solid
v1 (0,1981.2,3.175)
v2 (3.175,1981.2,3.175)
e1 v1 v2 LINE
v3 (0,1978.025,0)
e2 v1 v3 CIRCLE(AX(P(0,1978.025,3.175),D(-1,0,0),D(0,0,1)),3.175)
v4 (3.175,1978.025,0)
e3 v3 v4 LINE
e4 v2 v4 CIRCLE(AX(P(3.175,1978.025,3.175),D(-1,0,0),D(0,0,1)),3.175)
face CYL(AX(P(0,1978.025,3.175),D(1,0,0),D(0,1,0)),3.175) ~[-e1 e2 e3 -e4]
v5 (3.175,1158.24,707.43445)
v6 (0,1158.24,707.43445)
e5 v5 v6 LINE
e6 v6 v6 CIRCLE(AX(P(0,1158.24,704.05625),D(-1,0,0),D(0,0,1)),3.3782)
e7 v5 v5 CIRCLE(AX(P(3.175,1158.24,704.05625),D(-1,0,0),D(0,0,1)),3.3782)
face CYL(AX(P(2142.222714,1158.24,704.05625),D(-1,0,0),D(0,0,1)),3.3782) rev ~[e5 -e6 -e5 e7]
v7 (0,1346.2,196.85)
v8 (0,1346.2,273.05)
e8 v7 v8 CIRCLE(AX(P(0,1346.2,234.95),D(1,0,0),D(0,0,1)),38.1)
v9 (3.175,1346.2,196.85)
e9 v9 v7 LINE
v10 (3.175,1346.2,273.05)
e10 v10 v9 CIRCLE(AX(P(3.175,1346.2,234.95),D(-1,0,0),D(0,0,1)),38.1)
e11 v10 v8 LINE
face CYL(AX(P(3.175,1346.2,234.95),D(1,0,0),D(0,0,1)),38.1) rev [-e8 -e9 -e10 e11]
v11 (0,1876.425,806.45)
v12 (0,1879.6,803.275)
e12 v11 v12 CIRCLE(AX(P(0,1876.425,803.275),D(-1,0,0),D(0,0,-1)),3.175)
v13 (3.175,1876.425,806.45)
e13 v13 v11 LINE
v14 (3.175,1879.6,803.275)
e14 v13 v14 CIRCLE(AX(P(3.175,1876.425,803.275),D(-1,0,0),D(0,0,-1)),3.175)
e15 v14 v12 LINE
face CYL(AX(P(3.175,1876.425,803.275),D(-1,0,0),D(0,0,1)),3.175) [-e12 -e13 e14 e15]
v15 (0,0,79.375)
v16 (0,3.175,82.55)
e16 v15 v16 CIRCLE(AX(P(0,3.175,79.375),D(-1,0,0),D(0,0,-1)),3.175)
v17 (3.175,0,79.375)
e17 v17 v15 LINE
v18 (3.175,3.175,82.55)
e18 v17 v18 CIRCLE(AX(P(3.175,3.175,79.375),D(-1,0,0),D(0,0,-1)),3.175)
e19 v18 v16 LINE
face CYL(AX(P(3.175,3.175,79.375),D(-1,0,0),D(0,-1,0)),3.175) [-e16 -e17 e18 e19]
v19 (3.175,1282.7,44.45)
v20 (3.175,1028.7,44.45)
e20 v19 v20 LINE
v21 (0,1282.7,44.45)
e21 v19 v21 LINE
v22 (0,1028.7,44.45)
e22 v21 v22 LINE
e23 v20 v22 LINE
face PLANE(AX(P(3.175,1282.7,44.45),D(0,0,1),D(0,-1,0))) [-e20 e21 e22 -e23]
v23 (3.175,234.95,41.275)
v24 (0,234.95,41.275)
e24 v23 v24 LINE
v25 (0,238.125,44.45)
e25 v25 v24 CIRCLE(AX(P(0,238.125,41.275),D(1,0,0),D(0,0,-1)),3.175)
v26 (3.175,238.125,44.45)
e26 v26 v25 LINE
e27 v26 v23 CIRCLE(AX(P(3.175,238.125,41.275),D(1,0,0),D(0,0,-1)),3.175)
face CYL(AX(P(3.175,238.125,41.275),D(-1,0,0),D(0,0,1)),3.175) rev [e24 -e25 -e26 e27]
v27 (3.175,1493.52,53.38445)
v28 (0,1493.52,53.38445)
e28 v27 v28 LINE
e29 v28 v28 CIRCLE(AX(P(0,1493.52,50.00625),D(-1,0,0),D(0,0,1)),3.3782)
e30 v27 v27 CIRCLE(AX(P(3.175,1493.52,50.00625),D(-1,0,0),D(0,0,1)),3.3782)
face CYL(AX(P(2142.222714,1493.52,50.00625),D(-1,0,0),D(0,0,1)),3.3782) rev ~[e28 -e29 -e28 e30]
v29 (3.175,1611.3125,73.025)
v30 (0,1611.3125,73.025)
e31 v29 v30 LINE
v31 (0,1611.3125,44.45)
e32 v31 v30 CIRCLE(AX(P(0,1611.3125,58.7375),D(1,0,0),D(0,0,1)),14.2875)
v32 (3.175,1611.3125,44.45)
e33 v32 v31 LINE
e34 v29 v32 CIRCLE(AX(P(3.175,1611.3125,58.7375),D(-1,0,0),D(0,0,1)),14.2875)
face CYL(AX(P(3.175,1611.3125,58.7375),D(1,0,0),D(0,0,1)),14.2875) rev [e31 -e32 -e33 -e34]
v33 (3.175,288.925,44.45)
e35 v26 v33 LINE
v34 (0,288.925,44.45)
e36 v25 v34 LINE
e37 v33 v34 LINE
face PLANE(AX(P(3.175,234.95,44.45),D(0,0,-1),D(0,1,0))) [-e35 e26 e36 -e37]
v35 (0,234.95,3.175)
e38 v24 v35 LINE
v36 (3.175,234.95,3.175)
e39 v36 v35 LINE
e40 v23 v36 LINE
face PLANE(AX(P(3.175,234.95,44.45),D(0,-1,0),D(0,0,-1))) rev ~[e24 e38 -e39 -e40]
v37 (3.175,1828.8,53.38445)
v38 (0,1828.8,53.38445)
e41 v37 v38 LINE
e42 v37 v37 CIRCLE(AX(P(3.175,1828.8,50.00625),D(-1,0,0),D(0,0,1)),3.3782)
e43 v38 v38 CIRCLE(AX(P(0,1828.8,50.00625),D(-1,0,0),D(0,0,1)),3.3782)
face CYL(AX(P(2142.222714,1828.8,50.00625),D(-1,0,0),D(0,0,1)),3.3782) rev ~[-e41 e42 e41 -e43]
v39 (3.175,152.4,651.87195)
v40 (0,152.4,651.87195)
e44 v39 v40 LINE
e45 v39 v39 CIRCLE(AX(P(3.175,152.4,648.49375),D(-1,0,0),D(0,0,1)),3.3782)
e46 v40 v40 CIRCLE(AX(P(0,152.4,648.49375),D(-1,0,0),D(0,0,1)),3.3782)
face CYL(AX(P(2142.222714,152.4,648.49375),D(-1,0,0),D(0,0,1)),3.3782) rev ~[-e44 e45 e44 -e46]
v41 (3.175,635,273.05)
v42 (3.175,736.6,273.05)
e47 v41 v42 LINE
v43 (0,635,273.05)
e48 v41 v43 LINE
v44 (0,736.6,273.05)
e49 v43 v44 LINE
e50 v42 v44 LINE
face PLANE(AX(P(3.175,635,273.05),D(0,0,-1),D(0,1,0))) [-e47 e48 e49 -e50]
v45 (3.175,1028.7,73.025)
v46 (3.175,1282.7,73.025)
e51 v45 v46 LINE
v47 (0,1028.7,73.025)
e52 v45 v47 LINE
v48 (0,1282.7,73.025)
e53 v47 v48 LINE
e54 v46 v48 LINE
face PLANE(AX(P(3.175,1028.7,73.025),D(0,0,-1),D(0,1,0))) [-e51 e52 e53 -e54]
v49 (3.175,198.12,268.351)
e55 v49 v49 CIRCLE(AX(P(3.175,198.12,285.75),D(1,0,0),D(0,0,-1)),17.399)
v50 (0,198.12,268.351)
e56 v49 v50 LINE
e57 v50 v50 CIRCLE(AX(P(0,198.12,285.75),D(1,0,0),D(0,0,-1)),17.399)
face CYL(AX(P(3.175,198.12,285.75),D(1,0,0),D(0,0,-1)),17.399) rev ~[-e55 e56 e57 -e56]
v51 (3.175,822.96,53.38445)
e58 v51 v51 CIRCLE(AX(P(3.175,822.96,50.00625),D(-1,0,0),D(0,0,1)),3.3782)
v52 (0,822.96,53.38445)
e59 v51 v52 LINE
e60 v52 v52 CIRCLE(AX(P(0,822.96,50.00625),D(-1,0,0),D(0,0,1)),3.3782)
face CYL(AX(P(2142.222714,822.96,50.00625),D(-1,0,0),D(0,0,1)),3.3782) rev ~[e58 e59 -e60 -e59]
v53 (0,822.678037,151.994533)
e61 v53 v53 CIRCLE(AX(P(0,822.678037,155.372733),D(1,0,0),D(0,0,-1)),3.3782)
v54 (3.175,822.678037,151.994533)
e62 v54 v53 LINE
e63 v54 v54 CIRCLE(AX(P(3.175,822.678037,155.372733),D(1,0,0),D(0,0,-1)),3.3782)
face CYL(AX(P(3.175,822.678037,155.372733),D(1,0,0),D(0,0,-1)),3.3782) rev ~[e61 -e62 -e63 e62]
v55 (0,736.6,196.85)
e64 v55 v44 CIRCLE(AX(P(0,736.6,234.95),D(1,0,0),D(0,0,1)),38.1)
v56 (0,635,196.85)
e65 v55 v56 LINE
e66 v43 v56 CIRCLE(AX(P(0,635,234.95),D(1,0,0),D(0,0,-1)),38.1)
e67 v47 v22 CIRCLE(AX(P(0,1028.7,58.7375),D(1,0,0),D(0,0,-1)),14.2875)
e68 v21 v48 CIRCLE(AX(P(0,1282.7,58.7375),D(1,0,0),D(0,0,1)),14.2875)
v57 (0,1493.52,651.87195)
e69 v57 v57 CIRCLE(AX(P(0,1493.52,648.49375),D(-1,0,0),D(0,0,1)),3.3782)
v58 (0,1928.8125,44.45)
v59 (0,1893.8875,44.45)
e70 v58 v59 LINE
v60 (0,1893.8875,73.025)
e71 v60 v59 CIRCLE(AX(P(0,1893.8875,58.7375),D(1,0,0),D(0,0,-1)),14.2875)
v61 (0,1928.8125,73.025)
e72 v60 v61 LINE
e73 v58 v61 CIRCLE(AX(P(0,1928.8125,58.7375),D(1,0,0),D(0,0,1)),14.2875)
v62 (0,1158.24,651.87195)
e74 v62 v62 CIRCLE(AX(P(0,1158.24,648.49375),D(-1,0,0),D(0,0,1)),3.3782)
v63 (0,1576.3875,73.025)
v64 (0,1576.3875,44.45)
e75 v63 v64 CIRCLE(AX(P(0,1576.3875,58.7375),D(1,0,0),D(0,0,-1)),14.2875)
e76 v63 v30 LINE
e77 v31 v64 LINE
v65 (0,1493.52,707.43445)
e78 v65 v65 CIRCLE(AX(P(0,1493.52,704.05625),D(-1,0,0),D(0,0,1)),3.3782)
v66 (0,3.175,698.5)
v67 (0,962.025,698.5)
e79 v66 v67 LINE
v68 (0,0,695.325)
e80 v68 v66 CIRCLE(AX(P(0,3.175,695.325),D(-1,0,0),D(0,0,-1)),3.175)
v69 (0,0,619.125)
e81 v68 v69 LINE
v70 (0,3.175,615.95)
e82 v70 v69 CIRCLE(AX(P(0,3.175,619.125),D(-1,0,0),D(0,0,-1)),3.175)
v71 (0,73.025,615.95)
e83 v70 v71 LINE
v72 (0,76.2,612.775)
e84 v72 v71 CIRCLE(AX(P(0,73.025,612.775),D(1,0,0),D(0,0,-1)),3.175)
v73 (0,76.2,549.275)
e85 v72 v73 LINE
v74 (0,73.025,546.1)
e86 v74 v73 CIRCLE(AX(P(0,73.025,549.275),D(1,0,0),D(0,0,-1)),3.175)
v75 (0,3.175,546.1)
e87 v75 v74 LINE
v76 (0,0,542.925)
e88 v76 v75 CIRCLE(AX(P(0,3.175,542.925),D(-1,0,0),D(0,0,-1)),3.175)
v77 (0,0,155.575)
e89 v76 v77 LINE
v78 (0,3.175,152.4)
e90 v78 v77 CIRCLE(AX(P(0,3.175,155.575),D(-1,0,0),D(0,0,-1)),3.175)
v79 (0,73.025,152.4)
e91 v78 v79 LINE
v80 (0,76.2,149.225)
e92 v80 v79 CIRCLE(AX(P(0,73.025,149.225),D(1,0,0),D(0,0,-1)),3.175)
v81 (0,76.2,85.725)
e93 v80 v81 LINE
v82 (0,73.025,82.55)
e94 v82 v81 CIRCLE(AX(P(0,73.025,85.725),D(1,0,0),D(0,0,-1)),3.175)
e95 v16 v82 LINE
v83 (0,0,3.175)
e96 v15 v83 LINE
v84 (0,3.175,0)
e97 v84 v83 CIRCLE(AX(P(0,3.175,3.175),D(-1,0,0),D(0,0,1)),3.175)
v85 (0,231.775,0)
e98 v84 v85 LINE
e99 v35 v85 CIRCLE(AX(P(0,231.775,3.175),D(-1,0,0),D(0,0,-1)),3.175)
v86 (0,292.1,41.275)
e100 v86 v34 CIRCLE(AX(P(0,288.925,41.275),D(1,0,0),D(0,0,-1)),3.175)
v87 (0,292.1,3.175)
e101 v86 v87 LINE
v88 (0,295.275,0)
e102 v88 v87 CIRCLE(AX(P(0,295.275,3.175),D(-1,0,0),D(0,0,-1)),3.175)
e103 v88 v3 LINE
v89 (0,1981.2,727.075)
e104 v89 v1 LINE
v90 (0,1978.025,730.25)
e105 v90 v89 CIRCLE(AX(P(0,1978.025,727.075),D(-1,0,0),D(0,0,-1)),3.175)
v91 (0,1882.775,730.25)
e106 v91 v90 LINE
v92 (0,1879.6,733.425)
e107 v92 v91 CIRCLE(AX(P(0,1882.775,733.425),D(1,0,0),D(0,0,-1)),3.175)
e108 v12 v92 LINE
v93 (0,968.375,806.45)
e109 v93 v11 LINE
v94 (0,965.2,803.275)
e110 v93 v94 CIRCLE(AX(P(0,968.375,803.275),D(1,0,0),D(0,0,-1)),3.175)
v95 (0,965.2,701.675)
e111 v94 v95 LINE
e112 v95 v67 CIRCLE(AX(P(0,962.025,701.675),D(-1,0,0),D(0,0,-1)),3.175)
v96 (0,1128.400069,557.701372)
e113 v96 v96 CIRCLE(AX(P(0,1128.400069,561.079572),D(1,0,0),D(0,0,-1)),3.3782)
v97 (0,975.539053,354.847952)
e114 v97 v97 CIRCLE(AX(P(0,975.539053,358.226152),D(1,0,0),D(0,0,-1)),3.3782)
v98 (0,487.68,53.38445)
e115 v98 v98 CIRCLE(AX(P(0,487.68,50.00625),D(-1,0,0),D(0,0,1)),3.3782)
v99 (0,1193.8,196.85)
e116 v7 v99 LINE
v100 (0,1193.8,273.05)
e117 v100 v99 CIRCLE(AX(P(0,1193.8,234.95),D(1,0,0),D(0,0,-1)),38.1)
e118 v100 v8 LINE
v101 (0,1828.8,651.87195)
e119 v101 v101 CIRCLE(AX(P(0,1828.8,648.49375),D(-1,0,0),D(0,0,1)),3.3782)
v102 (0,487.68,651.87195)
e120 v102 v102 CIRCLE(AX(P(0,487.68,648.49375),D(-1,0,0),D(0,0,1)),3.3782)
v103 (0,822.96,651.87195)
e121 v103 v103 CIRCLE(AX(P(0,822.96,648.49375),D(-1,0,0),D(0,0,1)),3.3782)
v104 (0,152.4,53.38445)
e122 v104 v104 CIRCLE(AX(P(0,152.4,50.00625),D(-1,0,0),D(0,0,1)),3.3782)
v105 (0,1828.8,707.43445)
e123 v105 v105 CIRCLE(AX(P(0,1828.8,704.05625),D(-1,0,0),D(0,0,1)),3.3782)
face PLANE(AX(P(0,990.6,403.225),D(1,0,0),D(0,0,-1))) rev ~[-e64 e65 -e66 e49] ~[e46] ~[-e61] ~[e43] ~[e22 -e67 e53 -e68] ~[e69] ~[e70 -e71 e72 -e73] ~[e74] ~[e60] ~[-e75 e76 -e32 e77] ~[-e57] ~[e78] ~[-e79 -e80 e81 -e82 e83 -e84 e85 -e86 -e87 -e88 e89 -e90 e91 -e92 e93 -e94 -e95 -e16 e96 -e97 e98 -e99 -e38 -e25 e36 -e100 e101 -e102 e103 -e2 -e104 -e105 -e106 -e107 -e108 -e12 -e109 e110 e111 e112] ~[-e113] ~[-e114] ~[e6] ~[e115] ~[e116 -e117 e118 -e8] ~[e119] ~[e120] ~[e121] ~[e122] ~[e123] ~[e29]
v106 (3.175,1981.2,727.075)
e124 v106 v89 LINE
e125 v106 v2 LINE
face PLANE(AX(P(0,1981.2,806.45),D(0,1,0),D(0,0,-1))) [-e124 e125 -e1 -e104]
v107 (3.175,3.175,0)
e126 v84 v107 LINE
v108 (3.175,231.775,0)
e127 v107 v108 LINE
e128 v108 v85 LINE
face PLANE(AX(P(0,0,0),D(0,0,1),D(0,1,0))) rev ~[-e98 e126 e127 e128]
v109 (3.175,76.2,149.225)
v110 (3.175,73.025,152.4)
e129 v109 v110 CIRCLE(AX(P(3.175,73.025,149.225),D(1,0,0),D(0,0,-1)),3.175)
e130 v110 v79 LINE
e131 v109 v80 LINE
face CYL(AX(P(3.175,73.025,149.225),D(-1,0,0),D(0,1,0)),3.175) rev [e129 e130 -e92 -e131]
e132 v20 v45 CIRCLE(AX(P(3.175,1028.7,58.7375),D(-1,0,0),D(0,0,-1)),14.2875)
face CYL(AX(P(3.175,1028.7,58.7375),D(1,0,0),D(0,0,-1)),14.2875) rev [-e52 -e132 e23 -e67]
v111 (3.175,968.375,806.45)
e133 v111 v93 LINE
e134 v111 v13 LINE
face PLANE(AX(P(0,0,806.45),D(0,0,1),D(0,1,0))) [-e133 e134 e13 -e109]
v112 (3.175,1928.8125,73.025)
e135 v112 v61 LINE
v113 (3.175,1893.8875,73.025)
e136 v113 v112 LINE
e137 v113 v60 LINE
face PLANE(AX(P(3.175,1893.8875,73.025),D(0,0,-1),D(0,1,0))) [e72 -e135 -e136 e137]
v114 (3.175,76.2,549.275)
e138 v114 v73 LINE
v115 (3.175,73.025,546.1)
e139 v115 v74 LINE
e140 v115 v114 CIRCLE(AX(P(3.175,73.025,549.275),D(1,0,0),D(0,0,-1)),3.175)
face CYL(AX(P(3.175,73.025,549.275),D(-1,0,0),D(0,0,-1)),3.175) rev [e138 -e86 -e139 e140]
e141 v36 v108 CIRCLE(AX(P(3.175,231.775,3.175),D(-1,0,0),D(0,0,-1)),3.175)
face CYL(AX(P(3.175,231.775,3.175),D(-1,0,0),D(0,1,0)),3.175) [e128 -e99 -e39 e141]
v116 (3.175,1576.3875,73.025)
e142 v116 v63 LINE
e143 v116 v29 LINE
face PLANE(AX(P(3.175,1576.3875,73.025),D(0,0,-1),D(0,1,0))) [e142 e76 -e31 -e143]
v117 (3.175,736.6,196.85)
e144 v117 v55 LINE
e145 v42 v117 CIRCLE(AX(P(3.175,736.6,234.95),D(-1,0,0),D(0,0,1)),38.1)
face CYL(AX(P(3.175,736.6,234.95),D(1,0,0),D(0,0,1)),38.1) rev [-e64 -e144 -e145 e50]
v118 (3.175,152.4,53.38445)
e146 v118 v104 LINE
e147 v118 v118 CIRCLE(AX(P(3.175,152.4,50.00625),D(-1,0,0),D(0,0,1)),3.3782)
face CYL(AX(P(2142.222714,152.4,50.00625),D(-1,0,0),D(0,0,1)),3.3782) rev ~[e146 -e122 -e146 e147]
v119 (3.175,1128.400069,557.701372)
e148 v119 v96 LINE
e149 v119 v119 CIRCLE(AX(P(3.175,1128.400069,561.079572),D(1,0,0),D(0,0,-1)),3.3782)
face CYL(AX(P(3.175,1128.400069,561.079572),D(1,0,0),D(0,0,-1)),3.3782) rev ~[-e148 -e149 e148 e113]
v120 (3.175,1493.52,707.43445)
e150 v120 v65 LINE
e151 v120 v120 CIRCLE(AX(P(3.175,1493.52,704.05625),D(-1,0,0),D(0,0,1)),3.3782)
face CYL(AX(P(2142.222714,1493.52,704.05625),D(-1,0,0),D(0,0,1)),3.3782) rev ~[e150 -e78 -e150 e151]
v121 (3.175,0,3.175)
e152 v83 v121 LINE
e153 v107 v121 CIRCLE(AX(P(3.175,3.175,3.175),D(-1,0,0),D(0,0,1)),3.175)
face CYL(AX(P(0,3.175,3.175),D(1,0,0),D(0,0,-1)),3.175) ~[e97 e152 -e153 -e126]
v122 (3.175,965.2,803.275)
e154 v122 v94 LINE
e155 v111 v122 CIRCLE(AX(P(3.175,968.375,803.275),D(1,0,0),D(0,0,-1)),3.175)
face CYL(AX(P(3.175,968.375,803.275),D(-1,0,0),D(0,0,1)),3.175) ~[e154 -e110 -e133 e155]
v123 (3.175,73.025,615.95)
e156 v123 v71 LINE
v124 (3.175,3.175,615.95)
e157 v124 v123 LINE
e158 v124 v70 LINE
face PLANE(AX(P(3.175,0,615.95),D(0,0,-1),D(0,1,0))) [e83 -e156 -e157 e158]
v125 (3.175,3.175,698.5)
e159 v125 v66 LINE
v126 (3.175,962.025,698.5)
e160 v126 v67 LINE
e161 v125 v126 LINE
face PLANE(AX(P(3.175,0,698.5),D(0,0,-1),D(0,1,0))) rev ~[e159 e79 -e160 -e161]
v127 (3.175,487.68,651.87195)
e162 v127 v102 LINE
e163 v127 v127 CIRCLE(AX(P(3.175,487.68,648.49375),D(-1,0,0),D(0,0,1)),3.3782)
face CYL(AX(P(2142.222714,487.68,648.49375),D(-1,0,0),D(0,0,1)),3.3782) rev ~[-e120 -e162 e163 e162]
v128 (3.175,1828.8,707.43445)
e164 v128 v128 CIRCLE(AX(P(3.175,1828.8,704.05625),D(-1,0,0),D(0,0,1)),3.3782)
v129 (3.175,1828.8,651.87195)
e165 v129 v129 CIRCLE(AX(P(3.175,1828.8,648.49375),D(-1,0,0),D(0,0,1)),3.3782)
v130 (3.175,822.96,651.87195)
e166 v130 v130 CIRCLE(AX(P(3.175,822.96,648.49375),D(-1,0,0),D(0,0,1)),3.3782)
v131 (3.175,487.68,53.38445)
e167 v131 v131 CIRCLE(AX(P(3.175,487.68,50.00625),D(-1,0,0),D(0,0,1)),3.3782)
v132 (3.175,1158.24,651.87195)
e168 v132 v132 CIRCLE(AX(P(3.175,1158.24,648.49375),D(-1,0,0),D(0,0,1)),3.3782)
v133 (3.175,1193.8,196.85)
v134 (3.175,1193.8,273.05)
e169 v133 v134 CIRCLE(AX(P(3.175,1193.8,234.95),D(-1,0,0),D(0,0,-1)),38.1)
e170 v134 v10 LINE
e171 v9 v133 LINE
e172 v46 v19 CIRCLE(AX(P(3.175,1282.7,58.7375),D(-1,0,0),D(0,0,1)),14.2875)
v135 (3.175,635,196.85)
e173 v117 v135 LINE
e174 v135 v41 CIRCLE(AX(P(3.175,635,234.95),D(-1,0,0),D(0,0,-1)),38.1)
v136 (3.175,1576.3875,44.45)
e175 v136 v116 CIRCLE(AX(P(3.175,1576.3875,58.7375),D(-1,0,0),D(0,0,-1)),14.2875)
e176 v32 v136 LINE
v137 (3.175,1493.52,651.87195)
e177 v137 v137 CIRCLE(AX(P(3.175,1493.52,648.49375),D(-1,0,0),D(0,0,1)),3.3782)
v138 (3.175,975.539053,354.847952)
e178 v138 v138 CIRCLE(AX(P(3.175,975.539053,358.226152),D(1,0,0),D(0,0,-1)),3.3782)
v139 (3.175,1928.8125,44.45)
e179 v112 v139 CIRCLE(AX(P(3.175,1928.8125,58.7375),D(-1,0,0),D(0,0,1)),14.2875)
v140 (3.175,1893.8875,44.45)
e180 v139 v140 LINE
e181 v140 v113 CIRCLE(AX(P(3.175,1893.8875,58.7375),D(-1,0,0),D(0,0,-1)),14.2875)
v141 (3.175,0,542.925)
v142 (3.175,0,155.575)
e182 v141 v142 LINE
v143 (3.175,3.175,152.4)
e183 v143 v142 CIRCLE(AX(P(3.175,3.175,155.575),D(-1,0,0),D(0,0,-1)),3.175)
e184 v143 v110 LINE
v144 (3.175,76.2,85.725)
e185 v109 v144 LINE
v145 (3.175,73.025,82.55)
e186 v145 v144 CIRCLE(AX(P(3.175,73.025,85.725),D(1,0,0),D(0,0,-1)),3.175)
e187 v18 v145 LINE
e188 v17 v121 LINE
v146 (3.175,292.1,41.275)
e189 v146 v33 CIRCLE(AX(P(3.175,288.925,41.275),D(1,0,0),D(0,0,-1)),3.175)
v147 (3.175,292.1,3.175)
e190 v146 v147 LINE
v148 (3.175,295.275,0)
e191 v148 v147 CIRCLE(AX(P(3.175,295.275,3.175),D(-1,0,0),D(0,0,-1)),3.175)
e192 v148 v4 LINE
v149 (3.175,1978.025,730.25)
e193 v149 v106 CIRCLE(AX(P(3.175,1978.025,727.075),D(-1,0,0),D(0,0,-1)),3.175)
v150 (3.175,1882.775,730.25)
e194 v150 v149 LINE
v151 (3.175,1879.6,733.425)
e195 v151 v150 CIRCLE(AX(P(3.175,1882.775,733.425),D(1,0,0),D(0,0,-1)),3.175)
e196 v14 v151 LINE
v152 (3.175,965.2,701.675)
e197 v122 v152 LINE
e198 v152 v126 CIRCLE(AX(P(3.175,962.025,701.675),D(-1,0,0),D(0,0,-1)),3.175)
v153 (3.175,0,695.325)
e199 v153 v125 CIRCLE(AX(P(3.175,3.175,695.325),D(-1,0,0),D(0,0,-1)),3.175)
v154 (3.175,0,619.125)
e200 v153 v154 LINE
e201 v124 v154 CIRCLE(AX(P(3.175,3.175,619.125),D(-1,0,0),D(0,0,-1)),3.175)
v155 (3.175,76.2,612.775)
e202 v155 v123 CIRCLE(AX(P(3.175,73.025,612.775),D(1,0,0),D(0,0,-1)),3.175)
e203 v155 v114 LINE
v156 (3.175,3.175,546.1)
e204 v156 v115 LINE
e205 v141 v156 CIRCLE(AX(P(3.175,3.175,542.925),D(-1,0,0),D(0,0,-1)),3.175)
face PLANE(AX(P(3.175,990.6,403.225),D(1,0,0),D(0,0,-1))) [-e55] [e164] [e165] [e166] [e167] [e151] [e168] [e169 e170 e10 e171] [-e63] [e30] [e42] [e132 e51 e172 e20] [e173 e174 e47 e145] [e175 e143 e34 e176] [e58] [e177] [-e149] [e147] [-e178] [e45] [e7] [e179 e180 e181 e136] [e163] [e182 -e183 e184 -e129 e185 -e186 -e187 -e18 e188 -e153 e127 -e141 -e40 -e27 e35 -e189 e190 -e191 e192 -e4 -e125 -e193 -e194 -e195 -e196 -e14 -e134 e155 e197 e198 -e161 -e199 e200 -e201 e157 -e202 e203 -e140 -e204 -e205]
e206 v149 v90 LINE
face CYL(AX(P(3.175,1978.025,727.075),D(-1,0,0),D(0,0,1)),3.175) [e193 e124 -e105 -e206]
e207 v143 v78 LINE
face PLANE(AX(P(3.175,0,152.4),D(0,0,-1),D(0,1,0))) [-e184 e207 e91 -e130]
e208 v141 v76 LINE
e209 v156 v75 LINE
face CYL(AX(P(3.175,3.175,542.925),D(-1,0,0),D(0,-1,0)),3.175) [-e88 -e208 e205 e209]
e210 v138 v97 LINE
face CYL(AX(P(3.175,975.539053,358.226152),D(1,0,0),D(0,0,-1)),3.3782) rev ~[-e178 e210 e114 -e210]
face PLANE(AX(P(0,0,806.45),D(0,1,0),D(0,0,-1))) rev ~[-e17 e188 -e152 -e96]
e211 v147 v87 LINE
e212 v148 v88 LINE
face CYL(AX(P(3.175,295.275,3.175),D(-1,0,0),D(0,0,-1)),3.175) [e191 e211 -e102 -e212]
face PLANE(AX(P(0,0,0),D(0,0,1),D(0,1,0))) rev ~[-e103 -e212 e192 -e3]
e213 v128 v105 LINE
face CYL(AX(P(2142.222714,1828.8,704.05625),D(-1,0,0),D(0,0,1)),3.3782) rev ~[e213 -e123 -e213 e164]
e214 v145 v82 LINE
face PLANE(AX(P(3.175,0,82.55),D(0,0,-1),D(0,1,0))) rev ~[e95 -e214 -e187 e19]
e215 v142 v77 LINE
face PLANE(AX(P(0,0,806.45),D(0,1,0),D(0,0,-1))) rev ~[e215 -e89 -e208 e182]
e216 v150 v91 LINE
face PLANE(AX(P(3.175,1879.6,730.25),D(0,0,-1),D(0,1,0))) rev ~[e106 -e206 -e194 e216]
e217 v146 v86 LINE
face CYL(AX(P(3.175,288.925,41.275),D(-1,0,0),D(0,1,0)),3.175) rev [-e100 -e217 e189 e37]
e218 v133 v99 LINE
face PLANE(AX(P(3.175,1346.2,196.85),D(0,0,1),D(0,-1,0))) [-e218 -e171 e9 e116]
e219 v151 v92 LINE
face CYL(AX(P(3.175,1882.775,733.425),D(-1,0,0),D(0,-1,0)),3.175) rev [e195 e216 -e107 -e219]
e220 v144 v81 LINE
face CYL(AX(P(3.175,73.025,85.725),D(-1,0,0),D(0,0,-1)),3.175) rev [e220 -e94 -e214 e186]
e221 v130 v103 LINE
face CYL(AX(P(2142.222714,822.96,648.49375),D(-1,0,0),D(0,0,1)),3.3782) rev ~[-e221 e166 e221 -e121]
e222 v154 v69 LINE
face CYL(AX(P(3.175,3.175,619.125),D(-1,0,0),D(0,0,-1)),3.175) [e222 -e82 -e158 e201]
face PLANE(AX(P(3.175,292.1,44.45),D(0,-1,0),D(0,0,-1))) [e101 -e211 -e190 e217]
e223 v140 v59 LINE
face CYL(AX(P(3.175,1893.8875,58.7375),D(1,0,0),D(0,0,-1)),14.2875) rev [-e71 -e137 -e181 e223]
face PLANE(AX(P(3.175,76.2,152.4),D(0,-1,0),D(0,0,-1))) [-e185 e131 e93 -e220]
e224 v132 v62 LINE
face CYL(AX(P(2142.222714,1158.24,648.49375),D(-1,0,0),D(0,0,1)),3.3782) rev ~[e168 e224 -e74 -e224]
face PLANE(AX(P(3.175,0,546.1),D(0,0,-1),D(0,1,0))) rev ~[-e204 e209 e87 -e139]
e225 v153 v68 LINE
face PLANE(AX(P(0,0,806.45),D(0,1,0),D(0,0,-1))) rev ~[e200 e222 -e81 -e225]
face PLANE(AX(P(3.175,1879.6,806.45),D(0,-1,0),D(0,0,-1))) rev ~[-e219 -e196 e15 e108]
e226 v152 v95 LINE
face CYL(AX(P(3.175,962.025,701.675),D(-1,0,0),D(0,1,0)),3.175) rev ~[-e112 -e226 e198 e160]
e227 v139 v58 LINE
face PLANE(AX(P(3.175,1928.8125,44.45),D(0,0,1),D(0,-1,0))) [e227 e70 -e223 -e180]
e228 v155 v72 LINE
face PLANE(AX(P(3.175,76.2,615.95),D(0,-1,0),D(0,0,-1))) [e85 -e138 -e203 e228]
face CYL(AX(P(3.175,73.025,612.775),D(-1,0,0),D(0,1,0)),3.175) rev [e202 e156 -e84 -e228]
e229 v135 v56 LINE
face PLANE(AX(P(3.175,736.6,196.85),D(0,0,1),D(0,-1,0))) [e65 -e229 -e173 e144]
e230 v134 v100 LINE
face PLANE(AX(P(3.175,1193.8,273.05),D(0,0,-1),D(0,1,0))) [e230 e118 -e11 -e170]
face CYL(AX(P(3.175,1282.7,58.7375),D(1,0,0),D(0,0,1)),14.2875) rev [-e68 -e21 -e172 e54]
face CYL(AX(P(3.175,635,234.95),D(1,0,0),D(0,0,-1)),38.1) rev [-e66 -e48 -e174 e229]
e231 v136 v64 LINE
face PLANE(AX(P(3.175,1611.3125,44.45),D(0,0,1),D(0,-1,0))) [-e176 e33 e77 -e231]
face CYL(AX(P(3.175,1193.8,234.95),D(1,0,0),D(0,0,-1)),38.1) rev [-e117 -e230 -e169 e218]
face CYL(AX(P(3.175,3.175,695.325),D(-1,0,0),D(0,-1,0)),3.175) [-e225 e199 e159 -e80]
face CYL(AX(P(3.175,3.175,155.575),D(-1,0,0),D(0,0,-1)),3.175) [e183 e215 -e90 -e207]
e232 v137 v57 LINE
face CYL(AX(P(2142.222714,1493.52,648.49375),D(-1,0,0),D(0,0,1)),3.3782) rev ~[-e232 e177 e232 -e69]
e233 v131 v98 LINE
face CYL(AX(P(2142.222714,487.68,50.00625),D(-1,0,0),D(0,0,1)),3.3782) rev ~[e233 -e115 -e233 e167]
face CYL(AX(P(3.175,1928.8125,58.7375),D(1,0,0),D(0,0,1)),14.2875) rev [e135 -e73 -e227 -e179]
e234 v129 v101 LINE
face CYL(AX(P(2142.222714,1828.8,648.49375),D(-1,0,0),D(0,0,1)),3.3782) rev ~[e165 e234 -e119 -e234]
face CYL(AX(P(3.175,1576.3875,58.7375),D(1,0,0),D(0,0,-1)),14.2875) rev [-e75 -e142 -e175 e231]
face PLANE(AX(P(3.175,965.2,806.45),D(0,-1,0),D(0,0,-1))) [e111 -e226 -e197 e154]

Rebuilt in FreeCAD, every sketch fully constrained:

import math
import FreeCAD as App
import Part
import Sketcher
Q = App.Units.Quantity


def edges_at(feature, points):
    """Names of the edges that pass closest to the given points."""
    edges = feature.Shape.Edges
    near = lambda p: min(range(len(edges)), key=lambda i: edges[i].distToShape(Part.Vertex(*p))[0])
    return sorted({f"Edge{near(p) + 1}" for p in points})

doc = App.newDocument("Part")
body = doc.addObject("PartDesign::Body", "Body")

# Sketch on YZ plane
sketch1 = doc.addObject("Sketcher::SketchObject", "Sketch")
body.addObject(sketch1)
sketch1.AttachmentSupport = (doc.YZ_Plane, [""])
sketch1.MapMode = "FlatFace"
sketch1.addGeometry(Part.LineSegment(App.Vector(1981, 806, 0), App.Vector(0, 806, 0)), False)
sketch1.addGeometry(Part.LineSegment(App.Vector(0, 806, 0), App.Vector(0, 0, 0)), False)
sketch1.addGeometry(Part.LineSegment(App.Vector(0, 0, 0), App.Vector(1981, 0, 0)), False)
sketch1.addGeometry(Part.LineSegment(App.Vector(1981, 0, 0), App.Vector(1981, 806, 0)), False)
sketch1.addConstraint(Sketcher.Constraint("Coincident", 0, 2, 1, 1))
sketch1.addConstraint(Sketcher.Constraint("Coincident", 1, 2, 2, 1))
sketch1.addConstraint(Sketcher.Constraint("Coincident", 2, 2, 3, 1))
sketch1.addConstraint(Sketcher.Constraint("Coincident", 3, 2, 0, 1))
sketch1.addConstraint(Sketcher.Constraint("Horizontal", 0))
sketch1.addConstraint(Sketcher.Constraint("Vertical", 1))
sketch1.addConstraint(Sketcher.Constraint("Horizontal", 2))
sketch1.addConstraint(Sketcher.Constraint("Vertical", 3))
sketch1.addConstraint(Sketcher.Constraint("Coincident", 1, 2, -1, 1))
sketch1.addConstraint(Sketcher.Constraint("DistanceX", 0, 2, 0, 1, Q("78 in")))
sketch1.addConstraint(Sketcher.Constraint("DistanceY", 1, 2, 1, 1, Q("31.75 in")))
pad1 = doc.addObject("PartDesign::Pad", "Pad")
body.addObject(pad1)
pad1.Profile = sketch1
pad1.Length = Q("0.125 in")

# Sketch on YZ plane
sketch2 = doc.addObject("Sketcher::SketchObject", "Sketch001")
body.addObject(sketch2)
sketch2.AttachmentSupport = (doc.YZ_Plane, [""])
sketch2.MapMode = "FlatFace"
sketch2.AttachmentOffset = App.Placement(App.Vector(0, 0, 0.125 * 25.4), App.Rotation())
sketch2.addGeometry(Part.LineSegment(App.Vector(965, 806, 0), App.Vector(0, 806, 0)), False)
sketch2.addGeometry(Part.LineSegment(App.Vector(0, 806, 0), App.Vector(0, 698, 0)), False)
sketch2.addGeometry(Part.LineSegment(App.Vector(0, 698, 0), App.Vector(965, 698, 0)), False)
sketch2.addGeometry(Part.LineSegment(App.Vector(965, 698, 0), App.Vector(965, 806, 0)), False)
sketch2.addGeometry(Part.LineSegment(App.Vector(1981, 806, 0), App.Vector(1880, 806, 0)), False)
sketch2.addGeometry(Part.LineSegment(App.Vector(1880, 806, 0), App.Vector(1880, 730, 0)), False)
sketch2.addGeometry(Part.LineSegment(App.Vector(1880, 730, 0), App.Vector(1981, 730, 0)), False)
sketch2.addGeometry(Part.LineSegment(App.Vector(1981, 730, 0), App.Vector(1981, 806, 0)), False)
sketch2.addConstraint(Sketcher.Constraint("Coincident", 0, 2, 1, 1))
sketch2.addConstraint(Sketcher.Constraint("Coincident", 1, 2, 2, 1))
sketch2.addConstraint(Sketcher.Constraint("Coincident", 2, 2, 3, 1))
sketch2.addConstraint(Sketcher.Constraint("Coincident", 3, 2, 0, 1))
sketch2.addConstraint(Sketcher.Constraint("Coincident", 4, 2, 5, 1))
sketch2.addConstraint(Sketcher.Constraint("Coincident", 5, 2, 6, 1))
sketch2.addConstraint(Sketcher.Constraint("Coincident", 6, 2, 7, 1))
sketch2.addConstraint(Sketcher.Constraint("Coincident", 7, 2, 4, 1))
sketch2.addConstraint(Sketcher.Constraint("Horizontal", 0))
sketch2.addConstraint(Sketcher.Constraint("Vertical", 1))
sketch2.addConstraint(Sketcher.Constraint("Horizontal", 2))
sketch2.addConstraint(Sketcher.Constraint("Vertical", 3))
sketch2.addConstraint(Sketcher.Constraint("Horizontal", 4))
sketch2.addConstraint(Sketcher.Constraint("Vertical", 5))
sketch2.addConstraint(Sketcher.Constraint("Horizontal", 6))
sketch2.addConstraint(Sketcher.Constraint("Vertical", 7))
sketch2.addConstraint(Sketcher.Constraint("PointOnObject", 0, 2, -2))
sketch2.addConstraint(Sketcher.Constraint("Horizontal", 3, 2, 4, 2))
sketch2.addConstraint(Sketcher.Constraint("DistanceX", 0, 2, 0, 1, Q("38 in")))
sketch2.addConstraint(Sketcher.Constraint("DistanceX", 4, 2, 4, 1, Q("4 in")))
sketch2.addConstraint(Sketcher.Constraint("DistanceY", 5, 2, 5, 1, Q("3 in")))
sketch2.addConstraint(Sketcher.Constraint("DistanceX", -1, 1, 4, 2, Q("74 in")))
sketch2.addConstraint(Sketcher.Constraint("DistanceY", 1, 2, 1, 1, Q("4.25 in")))
sketch2.addConstraint(Sketcher.Constraint("DistanceY", -1, 1, 1, 2, Q("27.5 in")))
pocket1 = doc.addObject("PartDesign::Pocket", "Pocket")
body.addObject(pocket1)
pocket1.Profile = sketch2
pocket1.Type = "ThroughAll"

# Sketch on YZ plane
sketch3 = doc.addObject("Sketcher::SketchObject", "Sketch002")
body.addObject(sketch3)
sketch3.AttachmentSupport = (doc.YZ_Plane, [""])
sketch3.MapMode = "FlatFace"
sketch3.AttachmentOffset = App.Placement(App.Vector(0, 0, 0.125 * 25.4), App.Rotation())
sketch3.addGeometry(Part.Circle(App.Vector(1828.8, 50, 0), App.Vector(0, 0, 1), 3.4), False)
sketch3.addGeometry(Part.Circle(App.Vector(1828.8, 704.1, 0), App.Vector(0, 0, 1), 3.4), False)
sketch3.addGeometry(Part.Circle(App.Vector(1828.8, 648.5, 0), App.Vector(0, 0, 1), 3.4), False)
sketch3.addGeometry(Part.Circle(App.Vector(1493.5, 704.1, 0), App.Vector(0, 0, 1), 3.4), False)
sketch3.addGeometry(Part.Circle(App.Vector(1493.5, 648.5, 0), App.Vector(0, 0, 1), 3.4), False)
sketch3.addGeometry(Part.Circle(App.Vector(1158.2, 704.1, 0), App.Vector(0, 0, 1), 3.4), False)
sketch3.addGeometry(Part.Circle(App.Vector(1158.2, 648.5, 0), App.Vector(0, 0, 1), 3.4), False)
sketch3.addGeometry(Part.Circle(App.Vector(823, 648.5, 0), App.Vector(0, 0, 1), 3.4), False)
sketch3.addGeometry(Part.Circle(App.Vector(487.7, 648.5, 0), App.Vector(0, 0, 1), 3.4), False)
sketch3.addGeometry(Part.Circle(App.Vector(152.4, 648.5, 0), App.Vector(0, 0, 1), 3.4), False)
sketch3.addGeometry(Part.Circle(App.Vector(152.4, 50, 0), App.Vector(0, 0, 1), 3.4), False)
sketch3.addGeometry(Part.Circle(App.Vector(487.7, 50, 0), App.Vector(0, 0, 1), 3.4), False)
sketch3.addGeometry(Part.Circle(App.Vector(823, 50, 0), App.Vector(0, 0, 1), 3.4), False)
sketch3.addGeometry(Part.Circle(App.Vector(1158.2, 50, 0), App.Vector(0, 0, 1), 3.4), False)
sketch3.addGeometry(Part.Circle(App.Vector(1493.5, 50, 0), App.Vector(0, 0, 1), 3.4), False)
sketch3.addGeometry(Part.Circle(App.Vector(823, 704.1, 0), App.Vector(0, 0, 1), 3.4), False)
sketch3.addGeometry(Part.Circle(App.Vector(487.7, 704.1, 0), App.Vector(0, 0, 1), 3.4), False)
sketch3.addGeometry(Part.Circle(App.Vector(152.4, 704.1, 0), App.Vector(0, 0, 1), 3.4), False)
sketch3.addConstraint(Sketcher.Constraint("Equal", 0, 1))
sketch3.addConstraint(Sketcher.Constraint("Equal", 1, 2))
sketch3.addConstraint(Sketcher.Constraint("Equal", 2, 3))
sketch3.addConstraint(Sketcher.Constraint("Equal", 3, 4))
sketch3.addConstraint(Sketcher.Constraint("Equal", 4, 5))
sketch3.addConstraint(Sketcher.Constraint("Equal", 5, 6))
sketch3.addConstraint(Sketcher.Constraint("Equal", 6, 7))
sketch3.addConstraint(Sketcher.Constraint("Equal", 7, 8))
sketch3.addConstraint(Sketcher.Constraint("Equal", 8, 9))
sketch3.addConstraint(Sketcher.Constraint("Equal", 9, 10))
sketch3.addConstraint(Sketcher.Constraint("Equal", 10, 11))
sketch3.addConstraint(Sketcher.Constraint("Equal", 11, 12))
sketch3.addConstraint(Sketcher.Constraint("Equal", 12, 13))
sketch3.addConstraint(Sketcher.Constraint("Equal", 13, 14))
sketch3.addConstraint(Sketcher.Constraint("Equal", 14, 15))
sketch3.addConstraint(Sketcher.Constraint("Equal", 15, 16))
sketch3.addConstraint(Sketcher.Constraint("Equal", 16, 17))
sketch3.addConstraint(Sketcher.Constraint("Horizontal", 1, 3, 3, 3))
sketch3.addConstraint(Sketcher.Constraint("Horizontal", 2, 3, 4, 3))
sketch3.addConstraint(Sketcher.Constraint("Horizontal", 3, 3, 5, 3))
sketch3.addConstraint(Sketcher.Constraint("Horizontal", 4, 3, 6, 3))
sketch3.addConstraint(Sketcher.Constraint("Horizontal", 6, 3, 7, 3))
sketch3.addConstraint(Sketcher.Constraint("Horizontal", 7, 3, 8, 3))
sketch3.addConstraint(Sketcher.Constraint("Horizontal", 8, 3, 9, 3))
sketch3.addConstraint(Sketcher.Constraint("Horizontal", 0, 3, 10, 3))
sketch3.addConstraint(Sketcher.Constraint("Horizontal", 10, 3, 11, 3))
sketch3.addConstraint(Sketcher.Constraint("Horizontal", 11, 3, 12, 3))
sketch3.addConstraint(Sketcher.Constraint("Horizontal", 12, 3, 13, 3))
sketch3.addConstraint(Sketcher.Constraint("Horizontal", 13, 3, 14, 3))
sketch3.addConstraint(Sketcher.Constraint("Horizontal", 5, 3, 15, 3))
sketch3.addConstraint(Sketcher.Constraint("Horizontal", 15, 3, 16, 3))
sketch3.addConstraint(Sketcher.Constraint("Horizontal", 16, 3, 17, 3))
sketch3.addConstraint(Sketcher.Constraint("Vertical", 0, 3, 1, 3))
sketch3.addConstraint(Sketcher.Constraint("Vertical", 1, 3, 2, 3))
sketch3.addConstraint(Sketcher.Constraint("Vertical", 3, 3, 4, 3))
sketch3.addConstraint(Sketcher.Constraint("Vertical", 5, 3, 6, 3))
sketch3.addConstraint(Sketcher.Constraint("Vertical", 9, 3, 10, 3))
sketch3.addConstraint(Sketcher.Constraint("Vertical", 8, 3, 11, 3))
sketch3.addConstraint(Sketcher.Constraint("Vertical", 7, 3, 12, 3))
sketch3.addConstraint(Sketcher.Constraint("Vertical", 6, 3, 13, 3))
sketch3.addConstraint(Sketcher.Constraint("Vertical", 4, 3, 14, 3))
sketch3.addConstraint(Sketcher.Constraint("Vertical", 12, 3, 15, 3))
sketch3.addConstraint(Sketcher.Constraint("Vertical", 11, 3, 16, 3))
sketch3.addConstraint(Sketcher.Constraint("Vertical", 10, 3, 17, 3))
sketch3.addConstraint(Sketcher.Constraint("Diameter", 0, Q("0.266 in")))
sketch3.addConstraint(Sketcher.Constraint("DistanceX", -1, 1, 0, 3, Q("72 in")))
sketch3.addConstraint(Sketcher.Constraint("DistanceX", -1, 1, 9, 3, Q("6 in")))
sketch3.addConstraint(Sketcher.Constraint("DistanceX", -1, 1, 3, 3, Q("58.8 in")))
sketch3.addConstraint(Sketcher.Constraint("DistanceX", -1, 1, 5, 3, Q("45.6 in")))
sketch3.addConstraint(Sketcher.Constraint("DistanceX", -1, 1, 7, 3, Q("32.4 in")))
sketch3.addConstraint(Sketcher.Constraint("DistanceX", -1, 1, 8, 3, Q("19.2 in")))
sketch3.addConstraint(Sketcher.Constraint("DistanceY", 0, 3, 1, 3, Q("25.75 in")))
sketch3.addConstraint(Sketcher.Constraint("DistanceY", -1, 1, 0, 3, Q("1.96875 in")))
sketch3.addConstraint(Sketcher.Constraint("DistanceY", -1, 1, 2, 3, Q("25.53125 in")))
doc.recompute()
hole = doc.addObject("PartDesign::Hole", "Hole")
body.addObject(hole)
hole.Profile = sketch3
hole.ThreadType = "None"
hole.Diameter = Q("0.266 in")
hole.DepthType = "ThroughAll"

# Sketch on YZ plane
sketch4 = doc.addObject("Sketcher::SketchObject", "Sketch003")
body.addObject(sketch4)
sketch4.AttachmentSupport = (doc.YZ_Plane, [""])
sketch4.MapMode = "FlatFace"
sketch4.AttachmentOffset = App.Placement(App.Vector(0, 0, 0.125 * 25.4), App.Rotation())
sketch4.addGeometry(Part.LineSegment(App.Vector(76, 152, 0), App.Vector(0, 152, 0)), False)
sketch4.addGeometry(Part.LineSegment(App.Vector(0, 152, 0), App.Vector(0, 83, 0)), False)
sketch4.addGeometry(Part.LineSegment(App.Vector(0, 83, 0), App.Vector(76, 83, 0)), False)
sketch4.addGeometry(Part.LineSegment(App.Vector(76, 83, 0), App.Vector(76, 152, 0)), False)
sketch4.addGeometry(Part.LineSegment(App.Vector(76, 616, 0), App.Vector(0, 616, 0)), False)
sketch4.addGeometry(Part.LineSegment(App.Vector(0, 616, 0), App.Vector(0, 546, 0)), False)
sketch4.addGeometry(Part.LineSegment(App.Vector(0, 546, 0), App.Vector(76, 546, 0)), False)
sketch4.addGeometry(Part.LineSegment(App.Vector(76, 546, 0), App.Vector(76, 616, 0)), False)
sketch4.addConstraint(Sketcher.Constraint("Coincident", 0, 2, 1, 1))
sketch4.addConstraint(Sketcher.Constraint("Coincident", 1, 2, 2, 1))
sketch4.addConstraint(Sketcher.Constraint("Coincident", 2, 2, 3, 1))
sketch4.addConstraint(Sketcher.Constraint("Coincident", 3, 2, 0, 1))
sketch4.addConstraint(Sketcher.Constraint("Coincident", 4, 2, 5, 1))
sketch4.addConstraint(Sketcher.Constraint("Coincident", 5, 2, 6, 1))
sketch4.addConstraint(Sketcher.Constraint("Coincident", 6, 2, 7, 1))
sketch4.addConstraint(Sketcher.Constraint("Coincident", 7, 2, 4, 1))
sketch4.addConstraint(Sketcher.Constraint("Horizontal", 0))
sketch4.addConstraint(Sketcher.Constraint("Vertical", 1))
sketch4.addConstraint(Sketcher.Constraint("Horizontal", 2))
sketch4.addConstraint(Sketcher.Constraint("Vertical", 3))
sketch4.addConstraint(Sketcher.Constraint("Horizontal", 4))
sketch4.addConstraint(Sketcher.Constraint("Vertical", 5))
sketch4.addConstraint(Sketcher.Constraint("Horizontal", 6))
sketch4.addConstraint(Sketcher.Constraint("Vertical", 7))
sketch4.addConstraint(Sketcher.Constraint("PointOnObject", 0, 2, -2))
sketch4.addConstraint(Sketcher.Constraint("PointOnObject", 4, 2, -2))
sketch4.addConstraint(Sketcher.Constraint("Vertical", 3, 2, 6, 2))
sketch4.addConstraint(Sketcher.Constraint("Equal", 3, 5))
sketch4.addConstraint(Sketcher.Constraint("DistanceX", 0, 2, 0, 1, Q("3 in")))
sketch4.addConstraint(Sketcher.Constraint("DistanceY", -1, 1, 0, 2, Q("6 in")))
sketch4.addConstraint(Sketcher.Constraint("DistanceY", 1, 2, 4, 2, Q("21 in")))
sketch4.addConstraint(Sketcher.Constraint("DistanceY", 1, 2, 1, 1, Q("2.75 in")))
pocket2 = doc.addObject("PartDesign::Pocket", "Pocket001")
body.addObject(pocket2)
pocket2.Profile = sketch4
pocket2.Type = "ThroughAll"
doc.recompute()

fillet = doc.addObject("PartDesign::Fillet", "Fillet")
body.addObject(fillet)
fillet.Base = (pocket2, edges_at(pocket2, [
    (1.587, 76.2, 82.55),
    (1.587, 0, 82.55),
    (1.587, 0, 152.4),
    (1.587, 76.2, 152.4),
    (1.587, 76.2, 546.1),
    (1.587, 0, 546.1),
    (1.587, 0, 615.95),
    (1.587, 76.2, 615.95),
    (1.587, 965.2, 806.45),
    (1.587, 965.2, 698.5),
    (1.587, 0, 698.5),
    (1.587, 1879.6, 806.45),
    (1.587, 1981.2, 730.25),
    (1.587, 1879.6, 730.25),
    (1.587, 0, 0),
    (1.587, 1981.2, 0),
]))
fillet.Radius = Q("0.125 in")

# Sketch on YZ plane
sketch5 = doc.addObject("Sketcher::SketchObject", "Sketch004")
body.addObject(sketch5)
sketch5.AttachmentSupport = (doc.YZ_Plane, [""])
sketch5.MapMode = "FlatFace"
sketch5.AttachmentOffset = App.Placement(App.Vector(0, 0, 0.125 * 25.4), App.Rotation())
sketch5.addGeometry(Part.Circle(App.Vector(198, 286, 0), App.Vector(0, 0, 1), 17), False)
sketch5.addConstraint(Sketcher.Constraint("Diameter", 0, Q("1.37 in")))
sketch5.addConstraint(Sketcher.Constraint("DistanceX", -1, 1, 0, 3, Q("7.8 in")))
sketch5.addConstraint(Sketcher.Constraint("DistanceY", -1, 1, 0, 3, Q("11.25 in")))
pocket3 = doc.addObject("PartDesign::Pocket", "Pocket002")
body.addObject(pocket3)
pocket3.Profile = sketch5
pocket3.Length = Q("0.25 in")

# Sketch on YZ plane
sketch6 = doc.addObject("Sketcher::SketchObject", "Sketch005")
body.addObject(sketch6)
sketch6.AttachmentSupport = (doc.YZ_Plane, [""])
sketch6.MapMode = "FlatFace"
sketch6.AttachmentOffset = App.Placement(App.Vector(0, 0, 0.125 * 25.4), App.Rotation())
sketch6.addGeometry(Part.LineSegment(App.Vector(292, 44, 0), App.Vector(235, 44, 0)), False)
sketch6.addGeometry(Part.LineSegment(App.Vector(235, 44, 0), App.Vector(235, 0, 0)), False)
sketch6.addGeometry(Part.LineSegment(App.Vector(235, 0, 0), App.Vector(292, 0, 0)), False)
sketch6.addGeometry(Part.LineSegment(App.Vector(292, 0, 0), App.Vector(292, 44, 0)), False)
sketch6.addConstraint(Sketcher.Constraint("Coincident", 0, 2, 1, 1))
sketch6.addConstraint(Sketcher.Constraint("Coincident", 1, 2, 2, 1))
sketch6.addConstraint(Sketcher.Constraint("Coincident", 2, 2, 3, 1))
sketch6.addConstraint(Sketcher.Constraint("Coincident", 3, 2, 0, 1))
sketch6.addConstraint(Sketcher.Constraint("Horizontal", 0))
sketch6.addConstraint(Sketcher.Constraint("Vertical", 1))
sketch6.addConstraint(Sketcher.Constraint("Horizontal", 2))
sketch6.addConstraint(Sketcher.Constraint("Vertical", 3))
sketch6.addConstraint(Sketcher.Constraint("PointOnObject", 1, 2, -1))
sketch6.addConstraint(Sketcher.Constraint("DistanceX", 0, 2, 0, 1, Q("2.25 in")))
sketch6.addConstraint(Sketcher.Constraint("DistanceY", 1, 2, 1, 1, Q("1.75 in")))
sketch6.addConstraint(Sketcher.Constraint("DistanceX", -1, 1, 2, 2, Q("11.5 in")))
pocket4 = doc.addObject("PartDesign::Pocket", "Pocket003")
body.addObject(pocket4)
pocket4.Profile = sketch6
pocket4.Type = "ThroughAll"

# Sketch on YZ plane
sketch7 = doc.addObject("Sketcher::SketchObject", "Sketch006")
body.addObject(sketch7)
sketch7.AttachmentSupport = (doc.YZ_Plane, [""])
sketch7.MapMode = "FlatFace"
sketch7.AttachmentOffset = App.Placement(App.Vector(0, 0, 0.125 * 25.4), App.Rotation())
sketch7.addGeometry(Part.Circle(App.Vector(1128.4, 561.1, 0), App.Vector(0, 0, 1), 3.4), False)
sketch7.addGeometry(Part.Circle(App.Vector(975.5, 358.2, 0), App.Vector(0, 0, 1), 3.4), False)
sketch7.addGeometry(Part.Circle(App.Vector(822.7, 155.4, 0), App.Vector(0, 0, 1), 3.4), False)
sketch7.addConstraint(Sketcher.Constraint("Equal", 0, 1))
sketch7.addConstraint(Sketcher.Constraint("Equal", 1, 2))
sketch7.addConstraint(Sketcher.Constraint("Diameter", 0, Q("0.266 in")))
sketch7.addConstraint(Sketcher.Constraint("DistanceX", -1, 1, 0, 3, 1128.400069))
sketch7.addConstraint(Sketcher.Constraint("DistanceY", -1, 1, 0, 3, 561.079572))
sketch7.addConstraint(Sketcher.Constraint("DistanceY", 1, 3, 0, 3, 202.85342))
sketch7.addConstraint(Sketcher.Constraint("DistanceY", 2, 3, 1, 3, 202.85342))
sketch7.addConstraint(Sketcher.Constraint("DistanceX", 2, 3, 0, 3, 305.722032))
sketch7.addConstraint(Sketcher.Constraint("DistanceX", -1, 1, 1, 3, 975.539053))
pocket5 = doc.addObject("PartDesign::Pocket", "Pocket004")
body.addObject(pocket5)
pocket5.Profile = sketch7
pocket5.Type = "ThroughAll"

# Sketch on YZ plane
sketch8 = doc.addObject("Sketcher::SketchObject", "Sketch007")
body.addObject(sketch8)
sketch8.AttachmentSupport = (doc.YZ_Plane, [""])
sketch8.MapMode = "FlatFace"
sketch8.AttachmentOffset = App.Placement(App.Vector(0, 0, 0.125 * 25.4), App.Rotation())
sketch8.addGeometry(Part.LineSegment(App.Vector(1029, 44, 0), App.Vector(1283, 44, 0)), False)
sketch8.addGeometry(Part.ArcOfCircle(Part.Circle(App.Vector(1283, 59, 0), App.Vector(0, 0, 1), 14), math.radians(-90), math.radians(90)), False)
sketch8.addGeometry(Part.LineSegment(App.Vector(1283, 73, 0), App.Vector(1029, 73, 0)), False)
sketch8.addGeometry(Part.ArcOfCircle(Part.Circle(App.Vector(1029, 59, 0), App.Vector(0, 0, 1), 14), math.radians(90), math.radians(270)), False)
sketch8.addGeometry(Part.LineSegment(App.Vector(1611, 73, 0), App.Vector(1576, 73, 0)), False)
sketch8.addGeometry(Part.ArcOfCircle(Part.Circle(App.Vector(1576, 59, 0), App.Vector(0, 0, 1), 14), math.radians(90), math.radians(270)), False)
sketch8.addGeometry(Part.LineSegment(App.Vector(1576, 44, 0), App.Vector(1611, 44, 0)), False)
sketch8.addGeometry(Part.ArcOfCircle(Part.Circle(App.Vector(1611, 59, 0), App.Vector(0, 0, 1), 14), math.radians(-90), math.radians(90)), False)
sketch8.addGeometry(Part.LineSegment(App.Vector(1894, 44, 0), App.Vector(1929, 44, 0)), False)
sketch8.addGeometry(Part.ArcOfCircle(Part.Circle(App.Vector(1929, 59, 0), App.Vector(0, 0, 1), 14), math.radians(-90), math.radians(90)), False)
sketch8.addGeometry(Part.LineSegment(App.Vector(1929, 73, 0), App.Vector(1894, 73, 0)), False)
sketch8.addGeometry(Part.ArcOfCircle(Part.Circle(App.Vector(1894, 59, 0), App.Vector(0, 0, 1), 14), math.radians(90), math.radians(270)), False)
sketch8.addConstraint(Sketcher.Constraint("Tangent", 0, 2, 1, 1))
sketch8.addConstraint(Sketcher.Constraint("Tangent", 1, 2, 2, 1))
sketch8.addConstraint(Sketcher.Constraint("Tangent", 2, 2, 3, 1))
sketch8.addConstraint(Sketcher.Constraint("Tangent", 3, 2, 0, 1))
sketch8.addConstraint(Sketcher.Constraint("Tangent", 4, 2, 5, 1))
sketch8.addConstraint(Sketcher.Constraint("Tangent", 5, 2, 6, 1))
sketch8.addConstraint(Sketcher.Constraint("Tangent", 6, 2, 7, 1))
sketch8.addConstraint(Sketcher.Constraint("Tangent", 7, 2, 4, 1))
sketch8.addConstraint(Sketcher.Constraint("Tangent", 8, 2, 9, 1))
sketch8.addConstraint(Sketcher.Constraint("Tangent", 9, 2, 10, 1))
sketch8.addConstraint(Sketcher.Constraint("Tangent", 10, 2, 11, 1))
sketch8.addConstraint(Sketcher.Constraint("Tangent", 11, 2, 8, 1))
sketch8.addConstraint(Sketcher.Constraint("Horizontal", 0))
sketch8.addConstraint(Sketcher.Constraint("Horizontal", 2))
sketch8.addConstraint(Sketcher.Constraint("Horizontal", 4))
sketch8.addConstraint(Sketcher.Constraint("Horizontal", 6))
sketch8.addConstraint(Sketcher.Constraint("Horizontal", 8))
sketch8.addConstraint(Sketcher.Constraint("Horizontal", 10))
sketch8.addConstraint(Sketcher.Constraint("Equal", 3, 5))
sketch8.addConstraint(Sketcher.Constraint("Equal", 7, 9))
sketch8.addConstraint(Sketcher.Constraint("Horizontal", 3, 3, 5, 3))
sketch8.addConstraint(Sketcher.Constraint("Horizontal", 7, 3, 9, 3))
sketch8.addConstraint(Sketcher.Constraint("Equal", 6, 8))
sketch8.addConstraint(Sketcher.Constraint("DistanceX", 0, 1, 0, 2, Q("10 in")))
sketch8.addConstraint(Sketcher.Constraint("Radius", 1, Q("0.5625 in")))
sketch8.addConstraint(Sketcher.Constraint("DistanceX", -1, 1, 1, 3, Q("50.5 in")))
sketch8.addConstraint(Sketcher.Constraint("DistanceX", 7, 3, 9, 3, Q("12.5 in")))
sketch8.addConstraint(Sketcher.Constraint("DistanceX", 4, 2, 4, 1, Q("1.375 in")))
sketch8.addConstraint(Sketcher.Constraint("DistanceY", -1, 1, 0, 2, Q("1.75 in")))
sketch8.addConstraint(Sketcher.Constraint("DistanceX", -1, 1, 5, 3, Q("62.0625 in")))
pocket6 = doc.addObject("PartDesign::Pocket", "Pocket005")
body.addObject(pocket6)
pocket6.Profile = sketch8
pocket6.Type = "ThroughAll"

# Sketch on YZ plane
sketch9 = doc.addObject("Sketcher::SketchObject", "Sketch008")
body.addObject(sketch9)
sketch9.AttachmentSupport = (doc.YZ_Plane, [""])
sketch9.MapMode = "FlatFace"
sketch9.AttachmentOffset = App.Placement(App.Vector(0, 0, 0.125 * 25.4), App.Rotation())
sketch9.addGeometry(Part.LineSegment(App.Vector(635, 197, 0), App.Vector(737, 197, 0)), False)
sketch9.addGeometry(Part.ArcOfCircle(Part.Circle(App.Vector(737, 235, 0), App.Vector(0, 0, 1), 38), math.radians(-90), math.radians(90)), False)
sketch9.addGeometry(Part.LineSegment(App.Vector(737, 273, 0), App.Vector(635, 273, 0)), False)
sketch9.addGeometry(Part.ArcOfCircle(Part.Circle(App.Vector(635, 235, 0), App.Vector(0, 0, 1), 38), math.radians(90), math.radians(270)), False)
sketch9.addGeometry(Part.LineSegment(App.Vector(1194, 197, 0), App.Vector(1346, 197, 0)), False)
sketch9.addGeometry(Part.ArcOfCircle(Part.Circle(App.Vector(1346, 235, 0), App.Vector(0, 0, 1), 38), math.radians(-90), math.radians(90)), False)
sketch9.addGeometry(Part.LineSegment(App.Vector(1346, 273, 0), App.Vector(1194, 273, 0)), False)
sketch9.addGeometry(Part.ArcOfCircle(Part.Circle(App.Vector(1194, 235, 0), App.Vector(0, 0, 1), 38), math.radians(90), math.radians(270)), False)
sketch9.addConstraint(Sketcher.Constraint("Tangent", 0, 2, 1, 1))
sketch9.addConstraint(Sketcher.Constraint("Tangent", 1, 2, 2, 1))
sketch9.addConstraint(Sketcher.Constraint("Tangent", 2, 2, 3, 1))
sketch9.addConstraint(Sketcher.Constraint("Tangent", 3, 2, 0, 1))
sketch9.addConstraint(Sketcher.Constraint("Tangent", 4, 2, 5, 1))
sketch9.addConstraint(Sketcher.Constraint("Tangent", 5, 2, 6, 1))
sketch9.addConstraint(Sketcher.Constraint("Tangent", 6, 2, 7, 1))
sketch9.addConstraint(Sketcher.Constraint("Tangent", 7, 2, 4, 1))
sketch9.addConstraint(Sketcher.Constraint("Horizontal", 0))
sketch9.addConstraint(Sketcher.Constraint("Horizontal", 2))
sketch9.addConstraint(Sketcher.Constraint("Horizontal", 4))
sketch9.addConstraint(Sketcher.Constraint("Horizontal", 6))
sketch9.addConstraint(Sketcher.Constraint("Equal", 3, 5))
sketch9.addConstraint(Sketcher.Constraint("Horizontal", 3, 3, 5, 3))
sketch9.addConstraint(Sketcher.Constraint("Radius", 1, Q("1.5 in")))
sketch9.addConstraint(Sketcher.Constraint("DistanceX", 0, 1, 0, 2, Q("4 in")))
sketch9.addConstraint(Sketcher.Constraint("DistanceX", 4, 1, 4, 2, Q("6 in")))
sketch9.addConstraint(Sketcher.Constraint("DistanceX", -1, 1, 1, 3, Q("29 in")))
sketch9.addConstraint(Sketcher.Constraint("DistanceX", -1, 1, 5, 3, Q("53 in")))
sketch9.addConstraint(Sketcher.Constraint("DistanceY", -1, 1, 1, 3, Q("9.25 in")))
pocket7 = doc.addObject("PartDesign::Pocket", "Pocket006")
body.addObject(pocket7)
pocket7.Profile = sketch9
pocket7.Type = "ThroughAll"
doc.recompute()

fillet2 = doc.addObject("PartDesign::Fillet", "Fillet001")
body.addObject(fillet2)
fillet2.Base = (pocket7, edges_at(pocket7, [
    (1.587, 292.1, 0),
    (1.587, 234.95, 0),
    (1.587, 234.95, 44.45),
    (1.587, 292.1, 44.45),
]))
fillet2.Radius = Q("0.125 in")

doc.recompute()
